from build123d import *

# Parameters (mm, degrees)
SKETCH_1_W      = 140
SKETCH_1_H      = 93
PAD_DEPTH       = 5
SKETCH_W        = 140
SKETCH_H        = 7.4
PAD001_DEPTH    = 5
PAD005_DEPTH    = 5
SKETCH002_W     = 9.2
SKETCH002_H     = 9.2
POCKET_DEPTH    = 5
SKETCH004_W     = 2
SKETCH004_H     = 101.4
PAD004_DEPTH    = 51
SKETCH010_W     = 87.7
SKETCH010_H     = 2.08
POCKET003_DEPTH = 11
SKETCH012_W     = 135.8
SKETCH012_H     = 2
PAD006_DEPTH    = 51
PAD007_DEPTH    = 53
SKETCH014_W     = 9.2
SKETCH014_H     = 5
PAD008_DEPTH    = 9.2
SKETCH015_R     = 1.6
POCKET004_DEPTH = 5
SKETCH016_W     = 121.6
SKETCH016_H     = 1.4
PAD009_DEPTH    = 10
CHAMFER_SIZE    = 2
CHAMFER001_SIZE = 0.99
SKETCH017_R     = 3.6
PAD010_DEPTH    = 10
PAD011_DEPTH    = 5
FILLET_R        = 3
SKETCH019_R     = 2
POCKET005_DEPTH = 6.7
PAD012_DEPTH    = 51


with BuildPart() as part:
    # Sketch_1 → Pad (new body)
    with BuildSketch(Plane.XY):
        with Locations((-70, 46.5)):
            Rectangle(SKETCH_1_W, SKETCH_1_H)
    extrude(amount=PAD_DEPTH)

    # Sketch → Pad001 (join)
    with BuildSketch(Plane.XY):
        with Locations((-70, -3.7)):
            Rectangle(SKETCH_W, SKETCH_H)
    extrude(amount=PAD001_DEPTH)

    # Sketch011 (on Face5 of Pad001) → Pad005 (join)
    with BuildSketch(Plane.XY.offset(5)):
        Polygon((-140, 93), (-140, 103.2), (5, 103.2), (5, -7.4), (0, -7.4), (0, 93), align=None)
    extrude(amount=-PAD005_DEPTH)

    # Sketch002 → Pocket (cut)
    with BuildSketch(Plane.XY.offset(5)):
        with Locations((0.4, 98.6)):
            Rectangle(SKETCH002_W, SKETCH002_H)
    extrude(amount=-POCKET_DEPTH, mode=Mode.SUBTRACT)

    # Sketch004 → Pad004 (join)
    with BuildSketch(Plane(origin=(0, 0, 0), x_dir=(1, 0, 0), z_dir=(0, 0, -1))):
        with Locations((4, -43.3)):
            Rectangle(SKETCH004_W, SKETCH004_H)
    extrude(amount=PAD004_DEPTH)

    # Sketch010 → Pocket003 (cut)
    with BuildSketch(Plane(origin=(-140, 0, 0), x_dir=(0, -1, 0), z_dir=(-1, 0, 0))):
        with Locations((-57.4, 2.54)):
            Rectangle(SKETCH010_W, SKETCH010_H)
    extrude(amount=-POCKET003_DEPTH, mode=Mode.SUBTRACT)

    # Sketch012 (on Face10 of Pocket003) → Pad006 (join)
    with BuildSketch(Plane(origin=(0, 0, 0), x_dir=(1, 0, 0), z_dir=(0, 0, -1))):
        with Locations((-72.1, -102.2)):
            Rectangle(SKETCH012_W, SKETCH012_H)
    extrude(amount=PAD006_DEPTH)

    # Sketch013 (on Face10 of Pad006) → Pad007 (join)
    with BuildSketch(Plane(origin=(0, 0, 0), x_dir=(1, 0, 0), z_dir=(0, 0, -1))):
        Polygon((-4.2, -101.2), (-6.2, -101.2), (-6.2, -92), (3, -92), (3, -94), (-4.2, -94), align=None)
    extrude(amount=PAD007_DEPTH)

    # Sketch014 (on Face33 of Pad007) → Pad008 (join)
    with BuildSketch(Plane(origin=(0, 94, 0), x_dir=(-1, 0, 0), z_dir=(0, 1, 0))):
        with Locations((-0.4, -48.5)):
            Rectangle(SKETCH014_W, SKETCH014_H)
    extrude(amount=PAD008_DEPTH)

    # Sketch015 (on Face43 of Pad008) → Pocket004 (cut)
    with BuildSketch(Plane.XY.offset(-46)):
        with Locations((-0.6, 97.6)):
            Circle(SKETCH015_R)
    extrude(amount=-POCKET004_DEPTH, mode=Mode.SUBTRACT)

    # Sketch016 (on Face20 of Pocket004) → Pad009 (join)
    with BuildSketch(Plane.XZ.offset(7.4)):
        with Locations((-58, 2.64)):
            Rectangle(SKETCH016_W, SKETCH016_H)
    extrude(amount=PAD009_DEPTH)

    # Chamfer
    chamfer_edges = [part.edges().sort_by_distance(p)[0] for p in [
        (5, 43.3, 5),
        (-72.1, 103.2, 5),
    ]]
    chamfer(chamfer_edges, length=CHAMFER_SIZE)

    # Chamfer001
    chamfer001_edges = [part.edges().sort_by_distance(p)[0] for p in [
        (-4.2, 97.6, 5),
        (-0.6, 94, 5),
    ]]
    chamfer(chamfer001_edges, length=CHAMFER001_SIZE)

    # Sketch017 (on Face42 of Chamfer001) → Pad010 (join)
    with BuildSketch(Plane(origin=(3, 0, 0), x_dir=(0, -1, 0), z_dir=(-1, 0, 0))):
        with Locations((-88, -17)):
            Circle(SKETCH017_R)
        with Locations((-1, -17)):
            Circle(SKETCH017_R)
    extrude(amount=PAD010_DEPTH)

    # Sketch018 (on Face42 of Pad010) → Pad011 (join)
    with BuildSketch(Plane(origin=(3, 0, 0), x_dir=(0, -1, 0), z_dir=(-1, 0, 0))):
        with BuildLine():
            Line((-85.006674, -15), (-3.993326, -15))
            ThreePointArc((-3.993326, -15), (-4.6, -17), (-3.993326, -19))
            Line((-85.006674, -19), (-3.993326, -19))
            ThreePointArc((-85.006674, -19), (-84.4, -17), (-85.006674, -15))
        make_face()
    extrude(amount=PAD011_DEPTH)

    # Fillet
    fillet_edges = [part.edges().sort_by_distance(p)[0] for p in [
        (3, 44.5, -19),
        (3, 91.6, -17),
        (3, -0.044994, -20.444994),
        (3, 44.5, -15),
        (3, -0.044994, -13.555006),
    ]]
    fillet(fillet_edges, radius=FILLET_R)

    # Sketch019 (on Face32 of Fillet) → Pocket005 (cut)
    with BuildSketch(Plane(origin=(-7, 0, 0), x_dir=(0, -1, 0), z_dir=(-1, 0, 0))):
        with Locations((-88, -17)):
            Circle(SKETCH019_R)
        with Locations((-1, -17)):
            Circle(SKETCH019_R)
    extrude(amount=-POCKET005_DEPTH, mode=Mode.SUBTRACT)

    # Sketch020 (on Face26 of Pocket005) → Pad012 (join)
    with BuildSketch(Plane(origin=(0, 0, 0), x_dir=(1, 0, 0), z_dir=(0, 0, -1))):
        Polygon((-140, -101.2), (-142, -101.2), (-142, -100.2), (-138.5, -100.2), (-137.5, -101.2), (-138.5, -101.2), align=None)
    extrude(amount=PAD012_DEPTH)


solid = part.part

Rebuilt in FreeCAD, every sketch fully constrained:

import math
import FreeCAD as App
import Part
import Sketcher
from FreeCAD import Vector
Q = App.Units.Quantity


def edges_at(feature, points):
    """Names of the edges that pass closest to the given points."""
    edges = feature.Shape.Edges
    near = lambda p: min(range(len(edges)), key=lambda i: edges[i].distToShape(Part.Vertex(*p))[0])
    return sorted({f"Edge{near(p) + 1}" for p in points})


def add_polygon(sketch, points):
    """Adds a closed chain of lines whose ends are joined by coincident constraints."""
    first, n = sketch.GeometryCount, len(points)
    for a, b in zip(points, points[1:] + points[:1]):
        sketch.addGeometry(Part.LineSegment(App.Vector(*a, 0), App.Vector(*b, 0)), False)
    for i in range(n):
        sketch.addConstraint(Sketcher.Constraint("Coincident", first + i, 2, first + (i + 1) % n, 1))

doc = App.newDocument("Part")
params = doc.addObject("Spreadsheet::Sheet", "Params")
for row, (alias, value) in enumerate([
    ("sketch1_width", "140 mm"),
    ("sketch1_height", "93 mm"),
    ("pad1_length", "5 mm"),
    ("sketch2_width", "140 mm"),
    ("sketch2_height", "7.4 mm"),
    ("pad2_length", "5 mm"),
    ("sketch3_width", "140 mm"),
    ("sketch3_width2", "5 mm"),
    ("sketch3_height", "10.2 mm"),
    ("sketch3_height2", "100.4 mm"),
    ("pad3_length", "5 mm"),
    ("sketch4_width", "9.2 mm"),
    ("pocket1_length", "5 mm"),
    ("sketch5_width", "2 mm"),
    ("sketch5_height", "101.4 mm"),
    ("pad4_length", "51 mm"),
    ("sketch6_width", "87.7 mm"),
    ("sketch6_height", "2.08 mm"),
    ("pocket2_length", "11 mm"),
    ("sketch7_height", "2 mm"),
    ("sketch7_width", "135.8 mm"),
    ("pad5_length", "51 mm"),
    ("sketch8_width", "2 mm"),
    ("sketch8_width2", "7.2 mm"),
    ("pad6_length", "53 mm"),
    ("sketch9_height", "5 mm"),
    ("sketch9_width", "9.2 mm"),
    ("pad7_length", "9.2 mm"),
    ("sketch10_diameter", "3.2 mm"),
    ("pocket3_length", "5 mm"),
    ("sketch11_width", "121.6 mm"),
    ("sketch11_height", "1.4 mm"),
    ("pad8_length", "10 mm"),
    ("chamfer_size", "2 mm"),
    ("chamfer2_size", "0.99 mm"),
    ("sketch12_diameter", "7.2 mm"),
    ("pad9_length", "10 mm"),
    ("sketch13_radius", "3.6 mm"),
    ("pad10_length", "5 mm"),
    ("fillet_radius", "3 mm"),
    ("sketch14_diameter", "4 mm"),
    ("pocket4_length", "6.7 mm"),
    ("sketch15_height", "1 mm"),
    ("sketch15_width", "4.5 mm"),
    ("pad11_length", "51 mm"),
], start=1):
    params.set(f"A{row}", alias)
    params.set(f"B{row}", "=" + value)
    params.setAlias(f"B{row}", alias)

body = doc.addObject("PartDesign::Body", "Body")

sketch1 = body.newObject("Sketcher::SketchObject", "Sketch")
sketch1.AttachmentSupport = (doc.getObject("XY_Plane"), [""])
sketch1.MapMode = "FlatFace"
add_polygon(sketch1, [(-140, 93), (-140, 0), (0, 0), (0, 93)])
sketch1.addConstraint(Sketcher.Constraint("Vertical", 0))
sketch1.addConstraint(Sketcher.Constraint("Horizontal", 1))
sketch1.addConstraint(Sketcher.Constraint("Vertical", 2))
sketch1.addConstraint(Sketcher.Constraint("Horizontal", 3))
sketch1.addConstraint(Sketcher.Constraint("Coincident", 1, 2, -1, 1))
sketch1.addConstraint(Sketcher.Constraint("DistanceX", 1, 1, 1, 2, Q("140 mm")))
sketch1.addConstraint(Sketcher.Constraint("DistanceY", 0, 2, 0, 1, Q("93 mm")))
sketch1.setExpression("Constraints[9]", "Params.sketch1_width")
sketch1.setExpression("Constraints[10]", "Params.sketch1_height")
pad1 = body.newObject("PartDesign::Pad", "Pad")
pad1.Profile = sketch1
pad1.setExpression("Length", "Params.pad1_length")

sketch2 = body.newObject("Sketcher::SketchObject", "Sketch001")
sketch2.AttachmentSupport = (doc.getObject("XY_Plane"), [""])
sketch2.MapMode = "FlatFace"
add_polygon(sketch2, [(-140, 0), (-140, -7), (0, -7), (0, 0)])
sketch2.addConstraint(Sketcher.Constraint("Vertical", 0))
sketch2.addConstraint(Sketcher.Constraint("Horizontal", 1))
sketch2.addConstraint(Sketcher.Constraint("Vertical", 2))
sketch2.addConstraint(Sketcher.Constraint("Horizontal", 3))
sketch2.addConstraint(Sketcher.Constraint("Coincident", 2, 2, -1, 1))
sketch2.addConstraint(Sketcher.Constraint("DistanceX", 1, 1, 1, 2, Q("140 mm")))
sketch2.addConstraint(Sketcher.Constraint("DistanceY", 0, 2, 0, 1, Q("7.4 mm")))
sketch2.setExpression("Constraints[9]", "Params.sketch2_width")
sketch2.setExpression("Constraints[10]", "Params.sketch2_height")
pad2 = body.newObject("PartDesign::Pad", "Pad001")
pad2.Profile = sketch2
pad2.setExpression("Length", "Params.pad2_length")

sketch3 = body.newObject("Sketcher::SketchObject", "Sketch002")
sketch3.AttachmentSupport = (doc.getObject("XY_Plane"), [""])
sketch3.MapMode = "FlatFace"
sketch3.AttachmentOffset = App.Placement(Vector(0, 0, 5), App.Rotation())
add_polygon(sketch3, [(-140, 103), (-140, 93), (0, 93), (0, -7), (5, -7), (5, 103)])
sketch3.addConstraint(Sketcher.Constraint("Vertical", 0))
sketch3.addConstraint(Sketcher.Constraint("Horizontal", 1))
sketch3.addConstraint(Sketcher.Constraint("Vertical", 2))
sketch3.addConstraint(Sketcher.Constraint("Horizontal", 3))
sketch3.addConstraint(Sketcher.Constraint("Vertical", 4))
sketch3.addConstraint(Sketcher.Constraint("Horizontal", 5))
sketch3.addConstraint(Sketcher.Constraint("PointOnObject", 1, 2, -2))
sketch3.addConstraint(Sketcher.Constraint("DistanceX", 1, 1, 1, 2, Q("140 mm")))
sketch3.addConstraint(Sketcher.Constraint("DistanceX", 3, 1, 3, 2, Q("5 mm")))
sketch3.addConstraint(Sketcher.Constraint("DistanceY", 0, 2, 0, 1, Q("10.2 mm")))
sketch3.addConstraint(Sketcher.Constraint("DistanceY", 2, 2, 2, 1, Q("100.4 mm")))
sketch3.addConstraint(Sketcher.Constraint("DistanceY", -1, 1, 0, 2, Q("93 mm")))
sketch3.setExpression("Constraints[13]", "Params.sketch3_width")
sketch3.setExpression("Constraints[14]", "Params.sketch3_width2")
sketch3.setExpression("Constraints[15]", "Params.sketch3_height")
sketch3.setExpression("Constraints[16]", "Params.sketch3_height2")
pad3 = body.newObject("PartDesign::Pad", "Pad002")
pad3.Profile = sketch3
pad3.setExpression("Length", "Params.pad3_length")
pad3.Reversed = True

sketch4 = body.newObject("Sketcher::SketchObject", "Sketch003")
sketch4.AttachmentSupport = (doc.getObject("XY_Plane"), [""])
sketch4.MapMode = "FlatFace"
sketch4.AttachmentOffset = App.Placement(Vector(0, 0, 5), App.Rotation())
add_polygon(sketch4, [(-4, 103), (-4, 94), (5, 94), (5, 103)])
sketch4.addConstraint(Sketcher.Constraint("Vertical", 0))
sketch4.addConstraint(Sketcher.Constraint("Horizontal", 1))
sketch4.addConstraint(Sketcher.Constraint("Vertical", 2))
sketch4.addConstraint(Sketcher.Constraint("Horizontal", 3))
sketch4.addConstraint(Sketcher.Constraint("Equal", 3, 0))
sketch4.addConstraint(Sketcher.Constraint("DistanceX", 1, 1, 1, 2, Q("9.2 mm")))
sketch4.addConstraint(Sketcher.Constraint("DistanceY", -1, 1, 0, 2, Q("94 mm")))
sketch4.addConstraint(Sketcher.Constraint("DistanceX", -1, 1, 1, 2, Q("5 mm")))
sketch4.setExpression("Constraints[9]", "Params.sketch4_width")
pocket1 = body.newObject("PartDesign::Pocket", "Pocket")
pocket1.Profile = sketch4
pocket1.setExpression("Length", "Params.pocket1_length")

sketch5 = body.newObject("Sketcher::SketchObject", "Sketch004")
sketch5.AttachmentSupport = (doc.getObject("XY_Plane"), [""])
sketch5.MapMode = "FlatFace"
add_polygon(sketch5, [(3, -7.4), (3, 94), (5, 94), (5, -7.4)])
sketch5.addConstraint(Sketcher.Constraint("Vertical", 0))
sketch5.addConstraint(Sketcher.Constraint("Horizontal", 1))
sketch5.addConstraint(Sketcher.Constraint("Vertical", 2))
sketch5.addConstraint(Sketcher.Constraint("Horizontal", 3))
sketch5.addConstraint(Sketcher.Constraint("DistanceX", 1, 1, 1, 2, Q("2 mm")))
sketch5.addConstraint(Sketcher.Constraint("DistanceY", 0, 1, 0, 2, Q("101.4 mm")))
sketch5.addConstraint(Sketcher.Constraint("DistanceX", -1, 1, 0, 2, Q("3 mm")))
sketch5.addConstraint(Sketcher.Constraint("DistanceY", -1, 1, 0, 2, Q("94 mm")))
sketch5.setExpression("Constraints[8]", "Params.sketch5_width")
sketch5.setExpression("Constraints[9]", "Params.sketch5_height")
pad4 = body.newObject("PartDesign::Pad", "Pad003")
pad4.Profile = sketch5
pad4.setExpression("Length", "Params.pad4_length")
pad4.Reversed = True

sketch6 = body.newObject("Sketcher::SketchObject", "Sketch005")
sketch6.AttachmentSupport = (doc.getObject("YZ_Plane"), [""])
sketch6.MapMode = "FlatFace"
sketch6.AttachmentOffset = App.Placement(Vector(0, 0, -140), App.Rotation())
add_polygon(sketch6, [(101.2, 3.6), (101.2, 1.5), (13.6, 1.5), (13.6, 3.6)])
sketch6.addConstraint(Sketcher.Constraint("Vertical", 0))
sketch6.addConstraint(Sketcher.Constraint("Horizontal", 1))
sketch6.addConstraint(Sketcher.Constraint("Vertical", 2))
sketch6.addConstraint(Sketcher.Constraint("Horizontal", 3))
sketch6.addConstraint(Sketcher.Constraint("DistanceX", 1, 2, 1, 1, Q("87.7 mm")))
sketch6.addConstraint(Sketcher.Constraint("DistanceY", 0, 2, 0, 1, Q("2.08 mm")))
sketch6.addConstraint(Sketcher.Constraint("DistanceY", -1, 1, 0, 2, Q("1.5 mm")))
sketch6.addConstraint(Sketcher.Constraint("DistanceX", -1, 1, 0, 2, Q("101.25 mm")))
sketch6.setExpression("Constraints[8]", "Params.sketch6_width")
sketch6.setExpression("Constraints[9]", "Params.sketch6_height")
pocket2 = body.newObject("PartDesign::Pocket", "Pocket001")
pocket2.Profile = sketch6
pocket2.setExpression("Length", "Params.pocket2_length")
pocket2.Reversed = True

sketch7 = body.newObject("Sketcher::SketchObject", "Sketch006")
sketch7.AttachmentSupport = (doc.getObject("XY_Plane"), [""])
sketch7.MapMode = "FlatFace"
add_polygon(sketch7, [(-140, 101.2), (-140, 103.2), (-4.2, 103.2), (-4.2, 101.2)])
sketch7.addConstraint(Sketcher.Constraint("Vertical", 0))
sketch7.addConstraint(Sketcher.Constraint("Horizontal", 1))
sketch7.addConstraint(Sketcher.Constraint("Vertical", 2))
sketch7.addConstraint(Sketcher.Constraint("Horizontal", 3))
sketch7.addConstraint(Sketcher.Constraint("DistanceY", 0, 1, 0, 2, Q("2 mm")))
sketch7.addConstraint(Sketcher.Constraint("DistanceX", 1, 1, 1, 2, Q("135.8 mm")))
sketch7.addConstraint(Sketcher.Constraint("DistanceX", 0, 2, -1, 1, Q("140 mm")))
sketch7.addConstraint(Sketcher.Constraint("DistanceY", -1, 1, 0, 2, Q("103.2 mm")))
sketch7.setExpression("Constraints[8]", "Params.sketch7_height")
sketch7.setExpression("Constraints[9]", "Params.sketch7_width")
pad5 = body.newObject("PartDesign::Pad", "Pad004")
pad5.Profile = sketch7
pad5.setExpression("Length", "Params.pad5_length")
pad5.Reversed = True

sketch8 = body.newObject("Sketcher::SketchObject", "Sketch007")
sketch8.AttachmentSupport = (doc.getObject("XY_Plane"), [""])
sketch8.MapMode = "FlatFace"
add_polygon(sketch8, [(-6.2, 101.2), (-4.2, 101.2), (-4.2, 94), (3, 94), (3, 92), (-6.2, 92)])
sketch8.addConstraint(Sketcher.Constraint("Horizontal", 0))
sketch8.addConstraint(Sketcher.Constraint("Vertical", 1))
sketch8.addConstraint(Sketcher.Constraint("Horizontal", 2))
sketch8.addConstraint(Sketcher.Constraint("Vertical", 3))
sketch8.addConstraint(Sketcher.Constraint("Horizontal", 4))
sketch8.addConstraint(Sketcher.Constraint("Vertical", 5))
sketch8.addConstraint(Sketcher.Constraint("Equal", 2, 1))
sketch8.addConstraint(Sketcher.Constraint("Equal", 0, 3))
sketch8.addConstraint(Sketcher.Constraint("DistanceX", 0, 1, 0, 2, Q("2 mm")))
sketch8.addConstraint(Sketcher.Constraint("DistanceX", 2, 1, 2, 2, Q("7.2 mm")))
sketch8.addConstraint(Sketcher.Constraint("DistanceY", -1, 1, 1, 2, Q("94 mm")))
sketch8.addConstraint(Sketcher.Constraint("DistanceX", -1, 1, 2, 2, Q("3 mm")))
sketch8.setExpression("Constraints[14]", "Params.sketch8_width")
sketch8.setExpression("Constraints[15]", "Params.sketch8_width2")
pad6 = body.newObject("PartDesign::Pad", "Pad005")
pad6.Profile = sketch8
pad6.setExpression("Length", "Params.pad6_length")
pad6.Reversed = True

sketch9 = body.newObject("Sketcher::SketchObject", "Sketch008")
sketch9.AttachmentSupport = (doc.getObject("XZ_Plane"), [""])
sketch9.MapMode = "FlatFace"
sketch9.AttachmentOffset = App.Placement(Vector(0, 0, -94), App.Rotation())
add_polygon(sketch9, [(5, -46), (5, -51), (-4, -51), (-4, -46)])
sketch9.addConstraint(Sketcher.Constraint("Vertical", 0))
sketch9.addConstraint(Sketcher.Constraint("Horizontal", 1))
sketch9.addConstraint(Sketcher.Constraint("Vertical", 2))
sketch9.addConstraint(Sketcher.Constraint("Horizontal", 3))
sketch9.addConstraint(Sketcher.Constraint("DistanceY", 0, 2, 0, 1, Q("5 mm")))
sketch9.addConstraint(Sketcher.Constraint("DistanceX", 1, 2, 1, 1, Q("9.2 mm")))
sketch9.addConstraint(Sketcher.Constraint("DistanceX", -1, 1, 0, 2, Q("5 mm")))
sketch9.addConstraint(Sketcher.Constraint("DistanceY", 0, 2, -1, 1, Q("51 mm")))
sketch9.setExpression("Constraints[8]", "Params.sketch9_height")
sketch9.setExpression("Constraints[9]", "Params.sketch9_width")
pad7 = body.newObject("PartDesign::Pad", "Pad006")
pad7.Profile = sketch9
pad7.setExpression("Length", "Params.pad7_length")
pad7.Reversed = True

sketch10 = body.newObject("Sketcher::SketchObject", "Sketch009")
sketch10.AttachmentSupport = (doc.getObject("XY_Plane"), [""])
sketch10.MapMode = "FlatFace"
sketch10.AttachmentOffset = App.Placement(Vector(0, 0, -46), App.Rotation())
sketch10.addGeometry(Part.Circle(Vector(-0.6, 97.6, 0), Vector(0, 0, 1), 1.6), False)
sketch10.addConstraint(Sketcher.Constraint("Diameter", 0, Q("3.2 mm")))
sketch10.addConstraint(Sketcher.Constraint("DistanceX", 0, 3, -1, 1, Q("0.6 mm")))
sketch10.addConstraint(Sketcher.Constraint("DistanceY", -1, 1, 0, 3, Q("97.6 mm")))
sketch10.setExpression("Constraints[0]", "Params.sketch10_diameter")
pocket3 = body.newObject("PartDesign::Pocket", "Pocket002")
pocket3.Profile = sketch10
pocket3.setExpression("Length", "Params.pocket3_length")

sketch11 = body.newObject("Sketcher::SketchObject", "Sketch010")
sketch11.AttachmentSupport = (doc.getObject("XZ_Plane"), [""])
sketch11.MapMode = "FlatFace"
sketch11.AttachmentOffset = App.Placement(Vector(0, 0, 7.4), App.Rotation())
add_polygon(sketch11, [(-118.8, 3.3), (-118.8, 1.9), (2.8, 1.9), (2.8, 3.3)])
sketch11.addConstraint(Sketcher.Constraint("Vertical", 0))
sketch11.addConstraint(Sketcher.Constraint("Horizontal", 1))
sketch11.addConstraint(Sketcher.Constraint("Vertical", 2))
sketch11.addConstraint(Sketcher.Constraint("Horizontal", 3))
sketch11.addConstraint(Sketcher.Constraint("DistanceX", 1, 1, 1, 2, Q("121.6 mm")))
sketch11.addConstraint(Sketcher.Constraint("DistanceY", 0, 2, 0, 1, Q("1.4 mm")))
sketch11.addConstraint(Sketcher.Constraint("DistanceX", 0, 2, -1, 1, Q("118.8 mm")))
sketch11.addConstraint(Sketcher.Constraint("DistanceY", -1, 1, 0, 2, Q("1.94 mm")))
sketch11.setExpression("Constraints[8]", "Params.sketch11_width")
sketch11.setExpression("Constraints[9]", "Params.sketch11_height")
pad8 = body.newObject("PartDesign::Pad", "Pad007")
pad8.Profile = sketch11
pad8.setExpression("Length", "Params.pad8_length")
doc.recompute()

chamfer = body.newObject("PartDesign::Chamfer", "Chamfer")
chamfer.Base = (pad8, edges_at(pad8, [(5, 43.3, 5), (-72.1, 103.2, 5)]))
chamfer.setExpression("Size", "Params.chamfer_size")
doc.recompute()

chamfer2 = body.newObject("PartDesign::Chamfer", "Chamfer001")
chamfer2.Base = (chamfer, edges_at(chamfer, [(-4.2, 97.6, 5), (-0.6, 94, 5)]))
chamfer2.setExpression("Size", "Params.chamfer2_size")

sketch12 = body.newObject("Sketcher::SketchObject", "Sketch011")
sketch12.AttachmentSupport = (doc.getObject("YZ_Plane"), [""])
sketch12.MapMode = "FlatFace"
sketch12.AttachmentOffset = App.Placement(Vector(0, 0, 3), App.Rotation())
sketch12.addGeometry(Part.Circle(Vector(88, -17, 0), Vector(0, 0, 1), 3.6), False)
sketch12.addGeometry(Part.Circle(Vector(1, -17, 0), Vector(0, 0, 1), 3.6), False)
sketch12.addConstraint(Sketcher.Constraint("Equal", 0, 1))
sketch12.addConstraint(Sketcher.Constraint("Horizontal", 0, 3, 1, 3))
sketch12.addConstraint(Sketcher.Constraint("Diameter", 0, Q("7.2 mm")))
sketch12.addConstraint(Sketcher.Constraint("DistanceX", -1, 1, 0, 3, Q("88 mm")))
sketch12.addConstraint(Sketcher.Constraint("DistanceY", 0, 3, -1, 1, Q("17 mm")))
sketch12.addConstraint(Sketcher.Constraint("DistanceX", -1, 1, 1, 3, Q("1 mm")))
sketch12.setExpression("Constraints[2]", "Params.sketch12_diameter")
pad9 = body.newObject("PartDesign::Pad", "Pad008")
pad9.Profile = sketch12
pad9.setExpression("Length", "Params.pad9_length")
pad9.Reversed = True

sketch13 = body.newObject("Sketcher::SketchObject", "Sketch012")
sketch13.AttachmentSupport = (doc.getObject("YZ_Plane"), [""])
sketch13.MapMode = "FlatFace"
sketch13.AttachmentOffset = App.Placement(Vector(0, 0, 3), App.Rotation())
sketch13.addGeometry(Part.LineSegment(Vector(4, -15, 0), Vector(85, -15, 0)), False)
sketch13.addGeometry(Part.ArcOfCircle(Part.Circle(Vector(88, -17, 0), Vector(0, 0, 1), 3.6), math.radians(146), math.radians(214)), False)
sketch13.addGeometry(Part.LineSegment(Vector(85, -19, 0), Vector(4, -19, 0)), False)
sketch13.addGeometry(Part.ArcOfCircle(Part.Circle(Vector(1, -17, 0), Vector(0, 0, 1), 3.6), math.radians(-34), math.radians(34)), False)
sketch13.addConstraint(Sketcher.Constraint("Coincident", 0, 2, 1, 1))
sketch13.addConstraint(Sketcher.Constraint("Coincident", 1, 2, 2, 1))
sketch13.addConstraint(Sketcher.Constraint("Coincident", 2, 2, 3, 1))
sketch13.addConstraint(Sketcher.Constraint("Coincident", 3, 2, 0, 1))
sketch13.addConstraint(Sketcher.Constraint("Horizontal", 0))
sketch13.addConstraint(Sketcher.Constraint("Horizontal", 2))
sketch13.addConstraint(Sketcher.Constraint("Equal", 1, 3))
sketch13.addConstraint(Sketcher.Constraint("Horizontal", 1, 3, 3, 3))
sketch13.addConstraint(Sketcher.Constraint("Vertical", 0, 2, 1, 2))
sketch13.addConstraint(Sketcher.Constraint("Radius", 1, Q("3.6 mm")))
sketch13.addConstraint(Sketcher.Constraint("DistanceX", -1, 1, 1, 3, Q("88 mm")))
sketch13.addConstraint(Sketcher.Constraint("DistanceY", 1, 3, -1, 1, Q("17 mm")))
sketch13.addConstraint(Sketcher.Constraint("DistanceX", -1, 1, 3, 3, Q("1 mm")))
sketch13.addConstraint(Sketcher.Constraint("DistanceY", 0, 2, -1, 1, Q("15 mm")))
sketch13.setExpression("Constraints[9]", "Params.sketch13_radius")
pad10 = body.newObject("PartDesign::Pad", "Pad009")
pad10.Profile = sketch13
pad10.setExpression("Length", "Params.pad10_length")
pad10.Reversed = True
doc.recompute()

fillet = body.newObject("PartDesign::Fillet", "Fillet")
fillet.Base = (pad10, edges_at(pad10, [
    (3, 44.5, -19),
    (3, 91.6, -17),
    (3, -0.045, -20.445),
    (3, 44.5, -15),
    (3, -0.045, -13.555),
]))
fillet.setExpression("Radius", "Params.fillet_radius")

sketch14 = body.newObject("Sketcher::SketchObject", "Sketch013")
sketch14.AttachmentSupport = (doc.getObject("YZ_Plane"), [""])
sketch14.MapMode = "FlatFace"
sketch14.AttachmentOffset = App.Placement(Vector(0, 0, -7), App.Rotation())
sketch14.addGeometry(Part.Circle(Vector(88, -17, 0), Vector(0, 0, 1), 2), False)
sketch14.addGeometry(Part.Circle(Vector(1, -17, 0), Vector(0, 0, 1), 2), False)
sketch14.addConstraint(Sketcher.Constraint("Equal", 0, 1))
sketch14.addConstraint(Sketcher.Constraint("Horizontal", 0, 3, 1, 3))
sketch14.addConstraint(Sketcher.Constraint("Diameter", 0, Q("4 mm")))
sketch14.addConstraint(Sketcher.Constraint("DistanceX", -1, 1, 0, 3, Q("88 mm")))
sketch14.addConstraint(Sketcher.Constraint("DistanceY", 0, 3, -1, 1, Q("17 mm")))
sketch14.addConstraint(Sketcher.Constraint("DistanceX", -1, 1, 1, 3, Q("1 mm")))
sketch14.setExpression("Constraints[2]", "Params.sketch14_diameter")
pocket4 = body.newObject("PartDesign::Pocket", "Pocket003")
pocket4.Profile = sketch14
pocket4.setExpression("Length", "Params.pocket4_length")
pocket4.Reversed = True

sketch15 = body.newObject("Sketcher::SketchObject", "Sketch014")
sketch15.AttachmentSupport = (doc.getObject("XY_Plane"), [""])
sketch15.MapMode = "FlatFace"
add_polygon(sketch15, [(-142, 101.2), (-137.5, 101.2), (-138.5, 100.2), (-142, 100.2)])
sketch15.addConstraint(Sketcher.Constraint("Horizontal", 0))
sketch15.addConstraint(Sketcher.Constraint("Horizontal", 2))
sketch15.addConstraint(Sketcher.Constraint("Vertical", 3))
sketch15.addConstraint(Sketcher.Constraint("DistanceY", 3, 1, 3, 2, Q("1 mm")))
sketch15.addConstraint(Sketcher.Constraint("Angle", 1, Q("-135 deg")))
sketch15.addConstraint(Sketcher.Constraint("DistanceX", 0, 1, 0, 2, Q("4.5 mm")))
sketch15.addConstraint(Sketcher.Constraint("DistanceX", 2, 2, -1, 1, Q("142 mm")))
sketch15.addConstraint(Sketcher.Constraint("DistanceY", -1, 1, 0, 2, Q("101.2 mm")))
sketch15.setExpression("Constraints[7]", "Params.sketch15_height")
sketch15.setExpression("Constraints[9]", "Params.sketch15_width")
pad11 = body.newObject("PartDesign::Pad", "Pad010")
pad11.Profile = sketch15
pad11.setExpression("Length", "Params.pad11_length")
pad11.Reversed = True

doc.recompute()
